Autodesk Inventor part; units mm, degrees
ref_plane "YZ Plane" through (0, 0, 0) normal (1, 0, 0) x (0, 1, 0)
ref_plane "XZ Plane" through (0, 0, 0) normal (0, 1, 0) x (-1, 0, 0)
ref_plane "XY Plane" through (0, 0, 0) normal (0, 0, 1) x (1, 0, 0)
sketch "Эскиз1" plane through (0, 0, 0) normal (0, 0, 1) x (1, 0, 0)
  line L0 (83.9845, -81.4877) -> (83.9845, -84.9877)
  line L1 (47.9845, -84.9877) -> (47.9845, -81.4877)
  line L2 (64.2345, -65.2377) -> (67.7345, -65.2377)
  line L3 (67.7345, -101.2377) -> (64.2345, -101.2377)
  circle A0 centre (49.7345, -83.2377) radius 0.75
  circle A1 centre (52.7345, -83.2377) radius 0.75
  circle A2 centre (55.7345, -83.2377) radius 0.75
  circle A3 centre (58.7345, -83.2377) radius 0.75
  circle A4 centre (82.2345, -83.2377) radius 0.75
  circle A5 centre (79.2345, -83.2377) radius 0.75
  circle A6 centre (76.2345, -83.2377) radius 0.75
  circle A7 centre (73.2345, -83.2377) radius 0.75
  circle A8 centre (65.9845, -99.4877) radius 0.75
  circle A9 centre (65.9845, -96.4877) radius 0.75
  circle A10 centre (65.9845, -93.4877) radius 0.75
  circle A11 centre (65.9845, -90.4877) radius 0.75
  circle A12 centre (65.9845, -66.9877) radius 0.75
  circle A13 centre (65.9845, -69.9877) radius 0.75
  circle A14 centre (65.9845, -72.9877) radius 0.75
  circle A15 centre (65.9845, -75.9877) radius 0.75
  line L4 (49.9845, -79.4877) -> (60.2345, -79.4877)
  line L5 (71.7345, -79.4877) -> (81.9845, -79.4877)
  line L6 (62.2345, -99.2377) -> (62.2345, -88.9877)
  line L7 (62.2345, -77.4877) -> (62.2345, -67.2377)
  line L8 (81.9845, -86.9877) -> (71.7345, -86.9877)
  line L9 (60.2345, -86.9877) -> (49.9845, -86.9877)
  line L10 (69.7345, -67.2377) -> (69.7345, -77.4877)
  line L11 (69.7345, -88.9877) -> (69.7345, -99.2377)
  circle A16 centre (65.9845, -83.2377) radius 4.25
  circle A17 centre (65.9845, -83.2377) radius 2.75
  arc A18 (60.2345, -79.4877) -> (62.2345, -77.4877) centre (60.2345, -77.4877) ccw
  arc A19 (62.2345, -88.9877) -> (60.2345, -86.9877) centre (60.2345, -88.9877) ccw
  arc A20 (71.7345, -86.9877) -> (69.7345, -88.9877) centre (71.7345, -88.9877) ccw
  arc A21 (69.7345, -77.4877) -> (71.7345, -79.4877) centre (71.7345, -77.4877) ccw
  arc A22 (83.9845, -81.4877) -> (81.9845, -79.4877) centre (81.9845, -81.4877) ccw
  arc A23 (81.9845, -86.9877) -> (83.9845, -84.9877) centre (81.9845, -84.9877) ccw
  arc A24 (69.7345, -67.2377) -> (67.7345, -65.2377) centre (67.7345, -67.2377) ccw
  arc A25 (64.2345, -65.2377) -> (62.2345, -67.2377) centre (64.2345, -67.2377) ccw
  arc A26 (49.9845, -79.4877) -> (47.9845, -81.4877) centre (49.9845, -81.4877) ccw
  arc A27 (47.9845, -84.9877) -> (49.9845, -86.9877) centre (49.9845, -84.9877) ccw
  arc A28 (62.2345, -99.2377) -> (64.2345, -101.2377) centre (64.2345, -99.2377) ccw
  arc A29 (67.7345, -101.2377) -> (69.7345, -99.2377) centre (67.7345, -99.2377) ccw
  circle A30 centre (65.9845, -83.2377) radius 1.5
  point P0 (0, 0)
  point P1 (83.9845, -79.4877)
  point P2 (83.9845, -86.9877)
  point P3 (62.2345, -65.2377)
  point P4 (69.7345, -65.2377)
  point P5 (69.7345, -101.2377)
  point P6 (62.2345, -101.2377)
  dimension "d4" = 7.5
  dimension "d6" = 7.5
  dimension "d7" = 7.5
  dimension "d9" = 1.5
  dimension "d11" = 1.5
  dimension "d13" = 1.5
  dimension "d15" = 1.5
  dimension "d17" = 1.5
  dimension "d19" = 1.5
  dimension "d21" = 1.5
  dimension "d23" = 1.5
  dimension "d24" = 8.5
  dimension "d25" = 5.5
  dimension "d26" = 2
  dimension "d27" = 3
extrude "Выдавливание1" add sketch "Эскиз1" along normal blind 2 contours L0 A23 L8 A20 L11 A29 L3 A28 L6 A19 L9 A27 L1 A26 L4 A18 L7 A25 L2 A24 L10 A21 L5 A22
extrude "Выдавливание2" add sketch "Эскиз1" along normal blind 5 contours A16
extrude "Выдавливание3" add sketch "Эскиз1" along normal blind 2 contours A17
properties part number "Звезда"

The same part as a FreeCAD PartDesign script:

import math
import FreeCAD as App
import Part
import Sketcher
from FreeCAD import Vector

doc = App.newDocument("Part")
body = doc.addObject("PartDesign::Body", "Body")

sketch1 = body.newObject("Sketcher::SketchObject", "Sketch")
sketch1.AttachmentSupport = (doc.getObject("XY_Plane"), [""])
sketch1.MapMode = "FlatFace"
sketch1.addGeometry([
    Part.LineSegment(Vector(83.9845, -84.9877, 0), Vector(83.9845, -81.4877, 0)),
    Part.ArcOfCircle(Part.Circle(Vector(81.9845, -81.4877, 0), Vector(0, 0, 1), 2), math.radians(0), math.radians(90)),
    Part.LineSegment(Vector(81.9845, -79.4877, 0), Vector(71.7345, -79.4877, 0)),
    Part.ArcOfCircle(Part.Circle(Vector(71.7345, -77.4877, 0), Vector(0, 0, 1), 2), math.radians(180), math.radians(270)),
    Part.LineSegment(Vector(69.7345, -77.4877, 0), Vector(69.7345, -67.2377, 0)),
    Part.ArcOfCircle(Part.Circle(Vector(67.7345, -67.2377, 0), Vector(0, 0, 1), 2), math.radians(0), math.radians(90)),
    Part.LineSegment(Vector(67.7345, -65.2377, 0), Vector(64.2345, -65.2377, 0)),
    Part.ArcOfCircle(Part.Circle(Vector(64.2345, -67.2377, 0), Vector(0, 0, 1), 2), math.radians(90), math.radians(180)),
    Part.LineSegment(Vector(62.2345, -67.2377, 0), Vector(62.2345, -77.4877, 0)),
    Part.ArcOfCircle(Part.Circle(Vector(60.2345, -77.4877, 0), Vector(0, 0, 1), 2), math.radians(-90), math.radians(0)),
    Part.LineSegment(Vector(60.2345, -79.4877, 0), Vector(49.9845, -79.4877, 0)),
    Part.ArcOfCircle(Part.Circle(Vector(49.9845, -81.4877, 0), Vector(0, 0, 1), 2), math.radians(90), math.radians(180)),
    Part.LineSegment(Vector(47.9845, -81.4877, 0), Vector(47.9845, -84.9877, 0)),
    Part.ArcOfCircle(Part.Circle(Vector(49.9845, -84.9877, 0), Vector(0, 0, 1), 2), math.radians(180), math.radians(270)),
    Part.LineSegment(Vector(49.9845, -86.9877, 0), Vector(60.2345, -86.9877, 0)),
    Part.ArcOfCircle(Part.Circle(Vector(60.2345, -88.9877, 0), Vector(0, 0, 1), 2), math.radians(0), math.radians(90)),
    Part.LineSegment(Vector(62.2345, -88.9877, 0), Vector(62.2345, -99.2377, 0)),
    Part.ArcOfCircle(Part.Circle(Vector(64.2345, -99.2377, 0), Vector(0, 0, 1), 2), math.radians(180), math.radians(270)),
    Part.LineSegment(Vector(64.2345, -101.2377, 0), Vector(67.7345, -101.2377, 0)),
    Part.ArcOfCircle(Part.Circle(Vector(67.7345, -99.2377, 0), Vector(0, 0, 1), 2), math.radians(-90), math.radians(0)),
    Part.LineSegment(Vector(69.7345, -99.2377, 0), Vector(69.7345, -88.9877, 0)),
    Part.ArcOfCircle(Part.Circle(Vector(71.7345, -88.9877, 0), Vector(0, 0, 1), 2), math.radians(90), math.radians(180)),
    Part.LineSegment(Vector(71.7345, -86.9877, 0), Vector(81.9845, -86.9877, 0)),
    Part.ArcOfCircle(Part.Circle(Vector(81.9845, -84.9877, 0), Vector(0, 0, 1), 2), math.radians(-90), math.radians(0)),
    Part.Circle(Vector(65.9845, -99.4877, 0), Vector(0, 0, 1), 0.75),
    Part.Circle(Vector(65.9845, -96.4877, 0), Vector(0, 0, 1), 0.75),
    Part.Circle(Vector(65.9845, -93.4877, 0), Vector(0, 0, 1), 0.75),
    Part.Circle(Vector(65.9845, -90.4877, 0), Vector(0, 0, 1), 0.75),
    Part.Circle(Vector(49.7345, -83.2377, 0), Vector(0, 0, 1), 0.75),
    Part.Circle(Vector(52.7345, -83.2377, 0), Vector(0, 0, 1), 0.75),
    Part.Circle(Vector(55.7345, -83.2377, 0), Vector(0, 0, 1), 0.75),
    Part.Circle(Vector(58.7345, -83.2377, 0), Vector(0, 0, 1), 0.75),
    Part.Circle(Vector(65.9845, -83.2377, 0), Vector(0, 0, 1), 4.25),
    Part.Circle(Vector(73.2345, -83.2377, 0), Vector(0, 0, 1), 0.75),
    Part.Circle(Vector(65.9845, -75.9877, 0), Vector(0, 0, 1), 0.75),
    Part.Circle(Vector(76.2345, -83.2377, 0), Vector(0, 0, 1), 0.75),
    Part.Circle(Vector(79.2345, -83.2377, 0), Vector(0, 0, 1), 0.75),
    Part.Circle(Vector(82.2345, -83.2377, 0), Vector(0, 0, 1), 0.75),
    Part.Circle(Vector(65.9845, -72.9877, 0), Vector(0, 0, 1), 0.75),
    Part.Circle(Vector(65.9845, -69.9877, 0), Vector(0, 0, 1), 0.75),
    Part.Circle(Vector(65.9845, -66.9877, 0), Vector(0, 0, 1), 0.75),
], False)
sketch1.addConstraint([
    Sketcher.Constraint("Tangent", 0, 2, 1, 1),
    Sketcher.Constraint("Tangent", 1, 2, 2, 1),
    Sketcher.Constraint("Tangent", 2, 2, 3, 2),
    Sketcher.Constraint("Tangent", 3, 1, 4, 1),
    Sketcher.Constraint("Tangent", 4, 2, 5, 1),
    Sketcher.Constraint("Tangent", 5, 2, 6, 1),
    Sketcher.Constraint("Tangent", 6, 2, 7, 1),
    Sketcher.Constraint("Tangent", 7, 2, 8, 1),
    Sketcher.Constraint("Tangent", 8, 2, 9, 2),
    Sketcher.Constraint("Tangent", 9, 1, 10, 1),
    Sketcher.Constraint("Tangent", 10, 2, 11, 1),
    Sketcher.Constraint("Tangent", 11, 2, 12, 1),
    Sketcher.Constraint("Tangent", 12, 2, 13, 1),
    Sketcher.Constraint("Tangent", 13, 2, 14, 1),
    Sketcher.Constraint("Tangent", 14, 2, 15, 2),
    Sketcher.Constraint("Tangent", 15, 1, 16, 1),
    Sketcher.Constraint("Tangent", 16, 2, 17, 1),
    Sketcher.Constraint("Tangent", 17, 2, 18, 1),
    Sketcher.Constraint("Tangent", 18, 2, 19, 1),
    Sketcher.Constraint("Tangent", 19, 2, 20, 1),
    Sketcher.Constraint("Tangent", 20, 2, 21, 2),
    Sketcher.Constraint("Tangent", 21, 1, 22, 1),
    Sketcher.Constraint("Tangent", 22, 2, 23, 1),
    Sketcher.Constraint("Tangent", 23, 2, 0, 1),
    Sketcher.Constraint("Vertical", 0),
    Sketcher.Constraint("Horizontal", 2),
    Sketcher.Constraint("Vertical", 4),
    Sketcher.Constraint("Horizontal", 6),
    Sketcher.Constraint("Vertical", 8),
    Sketcher.Constraint("Horizontal", 10),
    Sketcher.Constraint("Vertical", 12),
    Sketcher.Constraint("Horizontal", 14),
    Sketcher.Constraint("Vertical", 16),
    Sketcher.Constraint("Horizontal", 18),
    Sketcher.Constraint("Vertical", 20),
    Sketcher.Constraint("Horizontal", 22),
    Sketcher.Constraint("Equal", 1, 3),
    Sketcher.Constraint("Equal", 3, 5),
    Sketcher.Constraint("Equal", 5, 7),
    Sketcher.Constraint("Equal", 7, 9),
    Sketcher.Constraint("Equal", 9, 11),
    Sketcher.Constraint("Equal", 11, 13),
    Sketcher.Constraint("Equal", 13, 15),
    Sketcher.Constraint("Equal", 15, 17),
    Sketcher.Constraint("Equal", 17, 19),
    Sketcher.Constraint("Equal", 19, 21),
    Sketcher.Constraint("Equal", 21, 23),
    Sketcher.Constraint("Equal", 24, 25),
    Sketcher.Constraint("Equal", 25, 26),
    Sketcher.Constraint("Equal", 26, 27),
    Sketcher.Constraint("Equal", 27, 28),
    Sketcher.Constraint("Equal", 28, 29),
    Sketcher.Constraint("Equal", 29, 30),
    Sketcher.Constraint("Equal", 30, 31),
    Sketcher.Constraint("Equal", 31, 33),
    Sketcher.Constraint("Equal", 33, 34),
    Sketcher.Constraint("Equal", 34, 35),
    Sketcher.Constraint("Equal", 35, 36),
    Sketcher.Constraint("Equal", 36, 37),
    Sketcher.Constraint("Equal", 37, 38),
    Sketcher.Constraint("Equal", 38, 39),
    Sketcher.Constraint("Equal", 39, 40),
    Sketcher.Constraint("Horizontal", 3, 3, 9, 3),
    Sketcher.Constraint("Horizontal", 15, 3, 21, 3),
    Sketcher.Constraint("Horizontal", 28, 3, 29, 3),
    Sketcher.Constraint("Horizontal", 29, 3, 30, 3),
    Sketcher.Constraint("Horizontal", 30, 3, 31, 3),
    Sketcher.Constraint("Horizontal", 31, 3, 32, 3),
    Sketcher.Constraint("Horizontal", 32, 3, 33, 3),
    Sketcher.Constraint("Horizontal", 33, 3, 35, 3),
    Sketcher.Constraint("Horizontal", 35, 3, 36, 3),
    Sketcher.Constraint("Horizontal", 36, 3, 37, 3),
    Sketcher.Constraint("Vertical", 9, 3, 15, 3),
    Sketcher.Constraint("Vertical", 5, 3, 19, 3),
    Sketcher.Constraint("Vertical", 24, 3, 25, 3),
    Sketcher.Constraint("Vertical", 25, 3, 26, 3),
    Sketcher.Constraint("Vertical", 26, 3, 27, 3),
    Sketcher.Constraint("Vertical", 27, 3, 32, 3),
    Sketcher.Constraint("Vertical", 32, 3, 34, 3),
    Sketcher.Constraint("Vertical", 34, 3, 38, 3),
    Sketcher.Constraint("Vertical", 38, 3, 39, 3),
    Sketcher.Constraint("Vertical", 39, 3, 40, 3),
    Sketcher.Constraint("Equal", 2, 10),
    Sketcher.Constraint("Equal", 18, 0),
    Sketcher.Constraint("Equal", 22, 4),
    Sketcher.Constraint("Equal", 8, 16),
    Sketcher.Constraint("Radius", 1, 2.0),
    Sketcher.Constraint("Diameter", 24, 1.5),
    Sketcher.Constraint("Diameter", 32, 8.5),
    Sketcher.Constraint("DistanceY", 24, 3, 25, 3, 3.0),
    Sketcher.Constraint("DistanceY", 25, 3, 26, 3, 3.0),
    Sketcher.Constraint("DistanceY", 26, 3, 27, 3, 3.0),
    Sketcher.Constraint("DistanceX", 28, 3, 29, 3, 3.0),
    Sketcher.Constraint("DistanceX", 29, 3, 30, 3, 3.0),
    Sketcher.Constraint("DistanceX", 30, 3, 31, 3, 3.0),
    Sketcher.Constraint("DistanceX", 33, 3, 35, 3, 3.0),
    Sketcher.Constraint("DistanceX", 35, 3, 36, 3, 3.0),
    Sketcher.Constraint("DistanceX", 36, 3, 37, 3, 3.0),
    Sketcher.Constraint("DistanceY", 34, 3, 38, 3, 3.0),
    Sketcher.Constraint("DistanceY", 38, 3, 39, 3, 3.0),
    Sketcher.Constraint("DistanceY", 39, 3, 40, 3, 3.0),
    Sketcher.Constraint("DistanceX", 7, 3, 3, 3, 7.5),
    Sketcher.Constraint("DistanceY", 25, 3, 15, 3, 7.5),
    Sketcher.Constraint("DistanceX", 29, 3, 9, 3, 7.5),
    Sketcher.Constraint("DistanceX", 3, 3, 33, 3, 1.5),
    Sketcher.Constraint("DistanceY", 3, 3, 34, 3, 1.5),
    Sketcher.Constraint("DistanceX", 11, 3, 1, 3, 32.0),
    Sketcher.Constraint("DistanceX", 13, 3, 24, 3, 16.0),
    Sketcher.Constraint("DistanceY", 28, 3, 11, 3, 1.75),
    Sketcher.Constraint("DistanceX", -1, 1, 1, 3, 81.9845),
    Sketcher.Constraint("DistanceY", 1, 3, -1, 1, 81.4877),
])
pad1 = body.newObject("PartDesign::Pad", "Pad")
pad1.Profile = sketch1
pad1.Length = 2

sketch2 = body.newObject("Sketcher::SketchObject", "Sketch001")
sketch2.AttachmentSupport = (doc.getObject("XY_Plane"), [""])
sketch2.MapMode = "FlatFace"
sketch2.addGeometry([
    Part.Circle(Vector(65.9845, -83.2377, 0), Vector(0, 0, 1), 4.25),
    Part.Circle(Vector(65.9845, -83.2377, 0), Vector(0, 0, 1), 2.75),
], False)
sketch2.addConstraint([
    Sketcher.Constraint("Coincident", 1, 3, 0, 3),
    Sketcher.Constraint("Diameter", 0, 8.5),
    Sketcher.Constraint("Diameter", 1, 5.5),
    Sketcher.Constraint("DistanceX", -1, 1, 0, 3, 65.9845),
    Sketcher.Constraint("DistanceY", 0, 3, -1, 1, 83.2377),
])
pad2 = body.newObject("PartDesign::Pad", "Pad001")
pad2.Profile = sketch2
pad2.Length = 5

sketch3 = body.newObject("Sketcher::SketchObject", "Sketch002")
sketch3.AttachmentSupport = (doc.getObject("XY_Plane"), [""])
sketch3.MapMode = "FlatFace"
sketch3.addGeometry([
    Part.Circle(Vector(65.9845, -83.2377, 0), Vector(0, 0, 1), 2.75),
    Part.Circle(Vector(65.9845, -83.2377, 0), Vector(0, 0, 1), 1.5),
], False)
sketch3.addConstraint([
    Sketcher.Constraint("Coincident", 1, 3, 0, 3),
    Sketcher.Constraint("Diameter", 1, 3.0),
    Sketcher.Constraint("Diameter", 0, 5.5),
    Sketcher.Constraint("DistanceX", -1, 1, 0, 3, 65.9845),
    Sketcher.Constraint("DistanceY", 0, 3, -1, 1, 83.2377),
])
pad3 = body.newObject("PartDesign::Pad", "Pad002")
pad3.Profile = sketch3
pad3.Length = 2

doc.recompute()
